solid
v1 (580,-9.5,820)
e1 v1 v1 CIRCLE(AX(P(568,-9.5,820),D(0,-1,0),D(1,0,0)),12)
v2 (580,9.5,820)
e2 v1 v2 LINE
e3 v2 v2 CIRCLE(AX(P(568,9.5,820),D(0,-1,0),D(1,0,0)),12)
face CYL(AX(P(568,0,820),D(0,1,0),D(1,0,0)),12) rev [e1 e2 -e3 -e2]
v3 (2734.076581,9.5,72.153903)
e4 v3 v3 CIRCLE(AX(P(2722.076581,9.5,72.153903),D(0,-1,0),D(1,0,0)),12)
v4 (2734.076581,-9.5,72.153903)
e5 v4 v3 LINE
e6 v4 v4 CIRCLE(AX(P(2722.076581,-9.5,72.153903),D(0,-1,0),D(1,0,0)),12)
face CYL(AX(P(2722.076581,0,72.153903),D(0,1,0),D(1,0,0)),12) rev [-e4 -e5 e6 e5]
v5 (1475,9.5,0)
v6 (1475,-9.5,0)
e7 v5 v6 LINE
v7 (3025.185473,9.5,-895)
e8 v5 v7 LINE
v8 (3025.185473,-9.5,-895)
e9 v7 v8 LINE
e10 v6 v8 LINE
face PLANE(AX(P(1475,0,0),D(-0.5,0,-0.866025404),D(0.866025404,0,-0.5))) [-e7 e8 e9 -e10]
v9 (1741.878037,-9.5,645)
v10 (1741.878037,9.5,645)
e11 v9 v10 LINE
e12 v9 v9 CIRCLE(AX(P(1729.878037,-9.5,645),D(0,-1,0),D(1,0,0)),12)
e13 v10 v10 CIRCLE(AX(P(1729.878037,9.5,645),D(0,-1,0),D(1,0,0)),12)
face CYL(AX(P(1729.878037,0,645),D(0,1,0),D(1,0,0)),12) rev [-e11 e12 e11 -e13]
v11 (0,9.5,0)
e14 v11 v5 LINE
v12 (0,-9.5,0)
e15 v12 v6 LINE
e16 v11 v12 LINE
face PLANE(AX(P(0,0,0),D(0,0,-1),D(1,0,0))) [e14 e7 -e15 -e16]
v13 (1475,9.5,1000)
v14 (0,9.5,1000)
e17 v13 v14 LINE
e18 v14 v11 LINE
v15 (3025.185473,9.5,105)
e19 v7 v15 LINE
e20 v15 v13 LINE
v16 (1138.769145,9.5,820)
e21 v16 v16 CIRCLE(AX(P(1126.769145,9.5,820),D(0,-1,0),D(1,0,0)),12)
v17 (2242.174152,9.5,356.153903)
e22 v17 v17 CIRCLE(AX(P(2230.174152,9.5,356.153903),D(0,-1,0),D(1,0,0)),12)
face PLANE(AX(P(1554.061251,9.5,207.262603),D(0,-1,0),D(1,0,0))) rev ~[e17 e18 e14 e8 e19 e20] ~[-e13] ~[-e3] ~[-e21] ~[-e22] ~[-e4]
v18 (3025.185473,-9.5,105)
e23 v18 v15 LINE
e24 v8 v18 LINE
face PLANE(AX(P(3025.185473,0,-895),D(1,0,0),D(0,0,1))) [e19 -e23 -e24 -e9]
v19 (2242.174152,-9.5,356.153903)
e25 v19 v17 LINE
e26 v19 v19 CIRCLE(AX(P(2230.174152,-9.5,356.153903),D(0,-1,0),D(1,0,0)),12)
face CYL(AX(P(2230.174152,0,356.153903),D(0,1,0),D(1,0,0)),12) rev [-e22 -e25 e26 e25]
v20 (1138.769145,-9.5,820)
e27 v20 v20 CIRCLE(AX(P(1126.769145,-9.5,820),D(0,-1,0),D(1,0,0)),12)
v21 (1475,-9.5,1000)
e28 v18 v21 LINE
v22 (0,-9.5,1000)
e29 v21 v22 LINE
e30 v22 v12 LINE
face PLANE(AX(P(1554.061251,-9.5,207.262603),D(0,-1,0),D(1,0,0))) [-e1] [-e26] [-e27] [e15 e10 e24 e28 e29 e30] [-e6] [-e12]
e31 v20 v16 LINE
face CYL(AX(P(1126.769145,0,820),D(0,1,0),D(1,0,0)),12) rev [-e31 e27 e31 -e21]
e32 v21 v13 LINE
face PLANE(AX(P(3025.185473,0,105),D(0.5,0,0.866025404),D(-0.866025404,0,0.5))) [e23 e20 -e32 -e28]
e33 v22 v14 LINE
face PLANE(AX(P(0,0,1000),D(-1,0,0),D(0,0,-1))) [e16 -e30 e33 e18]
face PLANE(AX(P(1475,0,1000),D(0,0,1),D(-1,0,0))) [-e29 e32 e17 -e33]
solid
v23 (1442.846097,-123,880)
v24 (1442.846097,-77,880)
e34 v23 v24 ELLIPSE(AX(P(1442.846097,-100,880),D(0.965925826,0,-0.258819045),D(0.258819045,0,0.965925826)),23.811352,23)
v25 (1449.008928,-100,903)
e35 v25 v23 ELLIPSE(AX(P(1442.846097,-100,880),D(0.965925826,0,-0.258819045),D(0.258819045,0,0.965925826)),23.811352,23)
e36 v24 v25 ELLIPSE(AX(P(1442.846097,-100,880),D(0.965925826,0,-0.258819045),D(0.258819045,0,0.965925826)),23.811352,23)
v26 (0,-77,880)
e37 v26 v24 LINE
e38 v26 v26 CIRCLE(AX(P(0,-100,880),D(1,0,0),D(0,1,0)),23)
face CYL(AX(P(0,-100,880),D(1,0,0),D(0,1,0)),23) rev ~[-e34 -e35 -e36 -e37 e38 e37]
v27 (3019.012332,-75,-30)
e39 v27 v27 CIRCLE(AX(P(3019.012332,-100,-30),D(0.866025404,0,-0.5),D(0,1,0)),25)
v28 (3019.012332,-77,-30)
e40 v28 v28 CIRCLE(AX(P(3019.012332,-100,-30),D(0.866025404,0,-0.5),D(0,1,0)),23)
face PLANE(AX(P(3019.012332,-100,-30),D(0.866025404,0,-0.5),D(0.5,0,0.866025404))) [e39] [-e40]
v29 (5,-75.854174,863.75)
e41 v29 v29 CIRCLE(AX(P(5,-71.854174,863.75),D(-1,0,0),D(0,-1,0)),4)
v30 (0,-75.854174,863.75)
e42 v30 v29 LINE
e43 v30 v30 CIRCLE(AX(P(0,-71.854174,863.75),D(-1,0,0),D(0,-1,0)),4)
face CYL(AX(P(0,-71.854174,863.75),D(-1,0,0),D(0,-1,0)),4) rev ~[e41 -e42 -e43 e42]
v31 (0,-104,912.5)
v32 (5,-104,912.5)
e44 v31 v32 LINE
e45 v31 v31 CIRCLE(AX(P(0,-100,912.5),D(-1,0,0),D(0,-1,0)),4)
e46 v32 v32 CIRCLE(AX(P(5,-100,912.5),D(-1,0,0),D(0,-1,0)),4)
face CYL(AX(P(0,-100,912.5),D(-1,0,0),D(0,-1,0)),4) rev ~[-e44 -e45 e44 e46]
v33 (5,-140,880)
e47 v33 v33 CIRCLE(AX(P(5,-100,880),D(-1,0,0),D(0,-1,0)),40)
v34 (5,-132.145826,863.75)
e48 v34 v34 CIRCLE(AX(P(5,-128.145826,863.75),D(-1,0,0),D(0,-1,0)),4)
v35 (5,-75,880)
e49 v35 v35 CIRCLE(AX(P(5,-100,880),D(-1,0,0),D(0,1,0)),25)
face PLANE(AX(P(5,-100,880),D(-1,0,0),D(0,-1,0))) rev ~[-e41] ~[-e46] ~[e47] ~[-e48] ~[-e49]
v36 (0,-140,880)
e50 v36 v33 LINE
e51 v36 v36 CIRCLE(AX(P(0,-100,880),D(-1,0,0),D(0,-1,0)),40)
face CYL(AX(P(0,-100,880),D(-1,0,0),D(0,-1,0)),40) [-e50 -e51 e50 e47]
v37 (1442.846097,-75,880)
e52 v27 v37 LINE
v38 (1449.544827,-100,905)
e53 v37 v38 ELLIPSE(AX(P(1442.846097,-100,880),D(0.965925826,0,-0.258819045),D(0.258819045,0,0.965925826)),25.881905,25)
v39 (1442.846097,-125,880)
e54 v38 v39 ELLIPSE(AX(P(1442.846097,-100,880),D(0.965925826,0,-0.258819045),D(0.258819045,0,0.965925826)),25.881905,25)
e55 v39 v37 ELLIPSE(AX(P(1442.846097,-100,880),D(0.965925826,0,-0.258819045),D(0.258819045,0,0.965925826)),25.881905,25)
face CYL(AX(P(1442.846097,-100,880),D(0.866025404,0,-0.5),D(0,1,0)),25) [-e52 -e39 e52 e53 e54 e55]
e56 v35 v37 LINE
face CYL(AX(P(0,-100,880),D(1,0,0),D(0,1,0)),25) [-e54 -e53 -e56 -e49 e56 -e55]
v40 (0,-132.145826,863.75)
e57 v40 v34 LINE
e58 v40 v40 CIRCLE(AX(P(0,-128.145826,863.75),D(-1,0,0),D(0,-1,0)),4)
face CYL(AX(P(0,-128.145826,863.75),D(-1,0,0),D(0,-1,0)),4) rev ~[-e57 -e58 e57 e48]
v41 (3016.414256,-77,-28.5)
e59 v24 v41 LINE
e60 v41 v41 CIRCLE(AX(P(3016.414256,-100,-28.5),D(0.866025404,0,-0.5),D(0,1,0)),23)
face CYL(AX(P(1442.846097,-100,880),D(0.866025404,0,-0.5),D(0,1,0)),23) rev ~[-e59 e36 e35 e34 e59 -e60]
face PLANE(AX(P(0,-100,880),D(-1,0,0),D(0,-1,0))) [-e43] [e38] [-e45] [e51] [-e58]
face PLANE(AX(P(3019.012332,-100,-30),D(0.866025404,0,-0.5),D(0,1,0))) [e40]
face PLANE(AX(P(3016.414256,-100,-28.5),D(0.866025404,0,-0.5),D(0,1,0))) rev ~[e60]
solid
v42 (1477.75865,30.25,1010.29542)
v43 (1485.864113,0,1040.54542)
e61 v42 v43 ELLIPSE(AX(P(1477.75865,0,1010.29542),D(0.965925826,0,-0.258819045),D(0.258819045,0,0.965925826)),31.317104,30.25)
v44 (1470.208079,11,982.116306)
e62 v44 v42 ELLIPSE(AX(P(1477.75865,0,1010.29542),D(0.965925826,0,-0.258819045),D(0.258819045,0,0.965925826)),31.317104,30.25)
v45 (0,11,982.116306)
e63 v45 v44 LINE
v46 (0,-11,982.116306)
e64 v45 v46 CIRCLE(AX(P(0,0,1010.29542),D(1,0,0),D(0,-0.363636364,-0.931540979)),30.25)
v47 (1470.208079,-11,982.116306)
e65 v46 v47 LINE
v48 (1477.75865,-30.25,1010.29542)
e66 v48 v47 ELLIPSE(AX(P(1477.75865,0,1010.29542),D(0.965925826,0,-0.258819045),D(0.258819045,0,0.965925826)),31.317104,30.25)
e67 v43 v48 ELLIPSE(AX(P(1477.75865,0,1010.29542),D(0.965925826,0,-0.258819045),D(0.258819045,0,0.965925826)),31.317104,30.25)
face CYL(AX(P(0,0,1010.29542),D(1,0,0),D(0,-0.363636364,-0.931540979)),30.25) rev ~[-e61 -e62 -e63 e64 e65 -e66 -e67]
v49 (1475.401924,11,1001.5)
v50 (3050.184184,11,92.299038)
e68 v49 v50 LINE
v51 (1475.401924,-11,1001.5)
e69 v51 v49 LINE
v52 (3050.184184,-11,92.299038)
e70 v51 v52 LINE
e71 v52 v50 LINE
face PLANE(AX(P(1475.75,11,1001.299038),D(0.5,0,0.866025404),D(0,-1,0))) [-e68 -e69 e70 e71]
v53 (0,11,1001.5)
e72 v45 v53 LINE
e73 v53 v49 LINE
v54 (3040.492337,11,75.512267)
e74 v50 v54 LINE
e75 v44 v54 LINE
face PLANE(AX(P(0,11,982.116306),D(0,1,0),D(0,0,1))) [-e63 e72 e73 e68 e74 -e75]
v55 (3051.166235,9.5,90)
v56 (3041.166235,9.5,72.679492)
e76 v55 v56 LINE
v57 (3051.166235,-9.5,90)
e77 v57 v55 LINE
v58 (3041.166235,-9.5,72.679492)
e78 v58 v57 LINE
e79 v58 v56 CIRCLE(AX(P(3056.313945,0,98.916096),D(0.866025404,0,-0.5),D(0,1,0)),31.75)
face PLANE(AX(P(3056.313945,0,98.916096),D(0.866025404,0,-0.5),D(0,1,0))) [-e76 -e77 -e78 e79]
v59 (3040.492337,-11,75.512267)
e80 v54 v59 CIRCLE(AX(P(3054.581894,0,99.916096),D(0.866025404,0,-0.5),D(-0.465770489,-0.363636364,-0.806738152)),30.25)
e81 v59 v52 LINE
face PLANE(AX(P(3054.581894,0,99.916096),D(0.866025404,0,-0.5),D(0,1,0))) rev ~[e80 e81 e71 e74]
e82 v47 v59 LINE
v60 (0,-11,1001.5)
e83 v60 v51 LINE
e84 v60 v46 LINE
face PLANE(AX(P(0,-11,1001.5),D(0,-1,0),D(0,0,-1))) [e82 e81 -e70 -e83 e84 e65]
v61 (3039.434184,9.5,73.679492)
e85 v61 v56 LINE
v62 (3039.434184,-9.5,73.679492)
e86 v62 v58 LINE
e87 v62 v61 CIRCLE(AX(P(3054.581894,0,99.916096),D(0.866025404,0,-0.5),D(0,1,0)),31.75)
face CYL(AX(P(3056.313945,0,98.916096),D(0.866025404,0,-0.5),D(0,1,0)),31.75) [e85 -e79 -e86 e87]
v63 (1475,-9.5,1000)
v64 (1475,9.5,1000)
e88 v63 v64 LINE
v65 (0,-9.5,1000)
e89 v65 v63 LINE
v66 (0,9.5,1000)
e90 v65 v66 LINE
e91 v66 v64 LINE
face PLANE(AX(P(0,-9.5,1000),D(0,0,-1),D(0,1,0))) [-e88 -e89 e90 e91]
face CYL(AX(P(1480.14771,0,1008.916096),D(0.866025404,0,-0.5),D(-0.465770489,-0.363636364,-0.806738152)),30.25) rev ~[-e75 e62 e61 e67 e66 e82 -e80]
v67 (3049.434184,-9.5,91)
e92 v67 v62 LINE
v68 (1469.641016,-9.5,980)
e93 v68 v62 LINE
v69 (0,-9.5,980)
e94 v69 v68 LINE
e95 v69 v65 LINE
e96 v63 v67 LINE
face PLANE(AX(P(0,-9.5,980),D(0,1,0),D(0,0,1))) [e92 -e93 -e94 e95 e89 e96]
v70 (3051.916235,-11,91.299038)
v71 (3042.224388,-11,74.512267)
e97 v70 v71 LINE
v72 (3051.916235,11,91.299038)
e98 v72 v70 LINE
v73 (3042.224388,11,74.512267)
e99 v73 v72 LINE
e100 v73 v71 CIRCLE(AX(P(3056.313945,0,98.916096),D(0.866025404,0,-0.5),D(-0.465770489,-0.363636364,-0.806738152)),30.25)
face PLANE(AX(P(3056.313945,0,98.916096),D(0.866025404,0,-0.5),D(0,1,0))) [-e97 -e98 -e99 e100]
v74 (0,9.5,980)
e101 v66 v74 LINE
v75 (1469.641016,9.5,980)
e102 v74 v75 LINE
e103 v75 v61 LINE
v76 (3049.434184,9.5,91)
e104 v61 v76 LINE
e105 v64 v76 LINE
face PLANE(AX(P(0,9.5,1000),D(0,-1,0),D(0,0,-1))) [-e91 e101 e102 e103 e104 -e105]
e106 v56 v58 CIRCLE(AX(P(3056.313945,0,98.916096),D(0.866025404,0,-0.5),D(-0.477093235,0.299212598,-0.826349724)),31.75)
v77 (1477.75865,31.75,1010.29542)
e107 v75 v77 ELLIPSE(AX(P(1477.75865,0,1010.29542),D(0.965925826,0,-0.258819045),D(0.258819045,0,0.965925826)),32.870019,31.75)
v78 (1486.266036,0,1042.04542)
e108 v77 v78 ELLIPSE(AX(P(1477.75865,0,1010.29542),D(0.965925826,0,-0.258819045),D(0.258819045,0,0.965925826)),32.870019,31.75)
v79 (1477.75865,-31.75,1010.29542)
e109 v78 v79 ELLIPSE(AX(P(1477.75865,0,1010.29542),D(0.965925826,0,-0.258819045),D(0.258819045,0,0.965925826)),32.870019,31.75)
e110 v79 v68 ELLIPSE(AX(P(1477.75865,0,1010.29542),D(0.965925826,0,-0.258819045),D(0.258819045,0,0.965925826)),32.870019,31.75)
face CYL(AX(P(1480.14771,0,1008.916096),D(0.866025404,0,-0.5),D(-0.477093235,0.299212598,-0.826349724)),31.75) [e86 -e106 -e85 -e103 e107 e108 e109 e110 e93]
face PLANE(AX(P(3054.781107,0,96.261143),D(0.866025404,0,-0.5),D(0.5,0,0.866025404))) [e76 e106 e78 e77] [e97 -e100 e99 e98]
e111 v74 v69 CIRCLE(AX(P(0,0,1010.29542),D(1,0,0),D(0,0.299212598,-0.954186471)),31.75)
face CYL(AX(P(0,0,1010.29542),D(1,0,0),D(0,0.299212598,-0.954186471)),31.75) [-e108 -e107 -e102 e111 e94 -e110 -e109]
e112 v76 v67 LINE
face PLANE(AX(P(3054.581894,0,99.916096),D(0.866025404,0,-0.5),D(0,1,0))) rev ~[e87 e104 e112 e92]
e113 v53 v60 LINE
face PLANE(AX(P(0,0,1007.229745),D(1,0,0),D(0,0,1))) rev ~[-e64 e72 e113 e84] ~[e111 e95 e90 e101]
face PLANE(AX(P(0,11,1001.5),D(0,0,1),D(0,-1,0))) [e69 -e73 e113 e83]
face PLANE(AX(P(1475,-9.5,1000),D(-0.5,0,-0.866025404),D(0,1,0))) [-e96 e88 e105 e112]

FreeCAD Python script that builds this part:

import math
import FreeCAD as App
import Part
import Sketcher

V = App.Vector
Q = App.Units.Quantity

doc = App.newDocument("Part")
body = doc.addObject("PartDesign::Body", "Body")

sketch1 = doc.addObject("Sketcher::SketchObject", "Sketch")
body.addObject(sketch1)
sketch1.AttachmentSupport = (doc.XZ_Plane, [""])
sketch1.MapMode = "FlatFace"
sketch1.addGeometry([
    Part.LineSegment(V(0, 1000, 0), V(0, 0, 0)),
    Part.LineSegment(V(0, 0, 0), V(1475, 0, 0)),
    Part.LineSegment(V(1475, 0, 0), V(3025, -895, 0)),
    Part.LineSegment(V(3025, -895, 0), V(3025, 105, 0)),
    Part.LineSegment(V(3025, 105, 0), V(1475, 1000, 0)),
    Part.LineSegment(V(1475, 1000, 0), V(0, 1000, 0)),
    Part.Circle(V(2722, 72, 0), V(0, 0, 1), 12),
    Part.Circle(V(2230, 356, 0), V(0, 0, 1), 12),
    Part.Circle(V(568, 820, 0), V(0, 0, 1), 12),
    Part.Circle(V(1127, 820, 0), V(0, 0, 1), 12),
    Part.Circle(V(1730, 645, 0), V(0, 0, 1), 12),
], False)
sketch1.addConstraint([
    Sketcher.Constraint("Coincident", 0, 2, 1, 1),
    Sketcher.Constraint("Coincident", 1, 2, 2, 1),
    Sketcher.Constraint("Coincident", 2, 2, 3, 1),
    Sketcher.Constraint("Coincident", 3, 2, 4, 1),
    Sketcher.Constraint("Coincident", 4, 2, 5, 1),
    Sketcher.Constraint("Coincident", 5, 2, 0, 1),
    Sketcher.Constraint("Vertical", 0),
    Sketcher.Constraint("Horizontal", 1),
    Sketcher.Constraint("Vertical", 3),
    Sketcher.Constraint("Horizontal", 5),
    Sketcher.Constraint("Coincident", 0, 2, -1, 1),
    Sketcher.Constraint("Equal", 6, 7),
    Sketcher.Constraint("Equal", 7, 8),
    Sketcher.Constraint("Equal", 8, 9),
    Sketcher.Constraint("Equal", 9, 10),
    Sketcher.Constraint("Parallel", 2, 4),
    Sketcher.Constraint("Horizontal", 8, 3, 9, 3),
    Sketcher.Constraint("Vertical", 1, 2, 4, 2),
    Sketcher.Constraint("Diameter", 6, Q("24 mm")),
    Sketcher.Constraint("DistanceX", 1, 1, 1, 2, Q("1475 mm")),
    Sketcher.Constraint("DistanceY", 0, 2, 0, 1, Q("1000 mm")),
    Sketcher.Constraint("Angle", 2, Q("-30 deg")),
    Sketcher.Constraint("Distance", 2, Q("1790 mm")),
    Sketcher.Constraint("DistanceX", -1, 1, 8, 3, Q("568 mm")),
    Sketcher.Constraint("DistanceY", -1, 1, 8, 3, Q("820 mm")),
    Sketcher.Constraint("DistanceY", -1, 1, 10, 3, Q("645 mm")),
    Sketcher.Constraint("DistanceY", 6, 3, 7, 3, Q("284 mm")),
    Sketcher.Constraint("DistanceX", -1, 1, 6, 3, Q("2722.076581 mm")),
    Sketcher.Constraint("DistanceX", 7, 3, 6, 3, Q("491.902429 mm")),
    Sketcher.Constraint("DistanceX", 9, 3, 10, 3, Q("603.108891 mm")),
    Sketcher.Constraint("DistanceY", -1, 1, 6, 3, Q("72.153903 mm")),
    Sketcher.Constraint("DistanceX", -1, 1, 9, 3, Q("1126.769145 mm")),
])
pad1 = doc.addObject("PartDesign::Pad", "Pad")
body.addObject(pad1)
pad1.Profile = sketch1
pad1.Length = 19
pad1.Midplane = True
body2 = doc.addObject("PartDesign::Body", "Body001")

sketch2 = doc.addObject("Sketcher::SketchObject", "Sketch001")
body2.addObject(sketch2)
sketch2.AttachmentSupport = (doc.getObject("YZ_Plane001"), [""])
sketch2.MapMode = "FlatFace"
sketch2.addGeometry([
    Part.LineSegment(V(10, 1000, 0), V(10, 980, 0)),
    Part.ArcOfCircle(Part.Circle(V(0, 1010, 0), V(0, 0, 1), 32), math.radians(-73), math.radians(253)),
    Part.LineSegment(V(-10, 980, 0), V(-10, 1000, 0)),
    Part.LineSegment(V(-10, 1000, 0), V(10, 1000, 0)),
    Part.LineSegment(V(-11, 1002, 0), V(-11, 982, 0)),
    Part.ArcOfCircle(Part.Circle(V(0, 1010, 0), V(0, 0, 1), 30), math.radians(-69), math.radians(249)),
    Part.LineSegment(V(11, 982, 0), V(11, 1002, 0)),
    Part.LineSegment(V(11, 1002, 0), V(-11, 1002, 0)),
], False)
sketch2.addConstraint([
    Sketcher.Constraint("Coincident", 0, 2, 1, 1),
    Sketcher.Constraint("Coincident", 1, 2, 2, 1),
    Sketcher.Constraint("Coincident", 2, 2, 3, 1),
    Sketcher.Constraint("Coincident", 3, 2, 0, 1),
    Sketcher.Constraint("Coincident", 4, 2, 5, 2),
    Sketcher.Constraint("Coincident", 5, 1, 6, 1),
    Sketcher.Constraint("Coincident", 6, 2, 7, 1),
    Sketcher.Constraint("Coincident", 7, 2, 4, 1),
    Sketcher.Constraint("Vertical", 0),
    Sketcher.Constraint("Vertical", 2),
    Sketcher.Constraint("Horizontal", 3),
    Sketcher.Constraint("Vertical", 4),
    Sketcher.Constraint("Vertical", 6),
    Sketcher.Constraint("Horizontal", 7),
    Sketcher.Constraint("Coincident", 5, 3, 1, 3),
    Sketcher.Constraint("Symmetric", 0, 2, 1, 2, -2),
    Sketcher.Constraint("Horizontal", 4, 2, 5, 1),
    Sketcher.Constraint("DistanceX", 3, 1, 3, 2, Q("19 mm")),
    Sketcher.Constraint("DistanceX", 7, 2, 7, 1, Q("22 mm")),
    Sketcher.Constraint("DistanceY", 0, 2, 0, 1, Q("20 mm")),
    Sketcher.Constraint("Radius", 1, Q("31.75 mm")),
    Sketcher.Constraint("Radius", 5, Q("30.25 mm")),
    Sketcher.Constraint("DistanceY", -1, 1, 0, 2, Q("980 mm")),
    Sketcher.Constraint("DistanceY", -1, 1, 6, 2, Q("1001.5 mm")),
])

sketch3 = doc.addObject("Sketcher::SketchObject", "Sketch002")
body2.addObject(sketch3)
sketch3.AttachmentSupport = (doc.getObject("XZ_Plane001"), [""])
sketch3.MapMode = "FlatFace"
sketch3.addGeometry([
    Part.LineSegment(V(0, 1000, 0), V(1475, 1000, 0)),
    Part.LineSegment(V(1475, 1000, 0), V(3051, 90, 0)),
], False)
sketch3.addConstraint([
    Sketcher.Constraint("Coincident", 0, 2, 1, 1),
    Sketcher.Constraint("Horizontal", 0),
    Sketcher.Constraint("PointOnObject", 0, 1, -2),
    Sketcher.Constraint("DistanceX", 0, 1, 0, 2, Q("1475 mm")),
    Sketcher.Constraint("Angle", 1, Q("-30 deg")),
    Sketcher.Constraint("Distance", 1, Q("1820 mm")),
    Sketcher.Constraint("DistanceY", -1, 1, 0, 1, Q("1000 mm")),
])
doc.recompute()

additivepipe = doc.addObject("PartDesign::AdditivePipe", "AdditivePipe")
body2.addObject(additivepipe)
additivepipe.Profile = sketch2
additivepipe.Spine = (sketch3, ["Edge1", "Edge2"])
additivepipe.Transition = "Right corner"

sketch4 = doc.addObject("Sketcher::SketchObject", "Sketch003")
body2.addObject(sketch4)
sketch4.Placement = App.Placement(V(2249.403533, 0, -1298.693735), App.Rotation(V(0, 1, 0), V(0.5, 0, 0.866025404), V(0.866025404, 0, -0.5), "ZXY"))
sketch4.addGeometry(Part.Circle(V(0, 1614, 0), V(0, 0, 1), 32), False)
sketch4.addConstraint([
    Sketcher.Constraint("PointOnObject", 0, 3, -2),
    Sketcher.Constraint("Diameter", 0, Q("63.5 mm")),
    Sketcher.Constraint("DistanceY", -1, 1, 0, 3, Q("1613.820825 mm")),
])
pad2 = doc.addObject("PartDesign::Pad", "Pad001")
body2.addObject(pad2)
pad2.Profile = sketch4
pad2.Length = 2
pad2.Reversed = True
body3 = doc.addObject("PartDesign::Body", "Body002")

sketch5 = doc.addObject("Sketcher::SketchObject", "Sketch004")
body3.addObject(sketch5)
sketch5.AttachmentSupport = (doc.getObject("YZ_Plane002"), [""])
sketch5.MapMode = "FlatFace"
sketch5.addGeometry([
    Part.Circle(V(-100, 880, 0), V(0, 0, 1), 25),
    Part.Circle(V(-100, 880, 0), V(0, 0, 1), 23),
], False)
sketch5.addConstraint([
    Sketcher.Constraint("Coincident", 1, 3, 0, 3),
    Sketcher.Constraint("Diameter", 0, Q("50 mm")),
    Sketcher.Constraint("Diameter", 1, Q("46 mm")),
    Sketcher.Constraint("DistanceX", 0, 3, -1, 1, Q("100 mm")),
    Sketcher.Constraint("DistanceY", -1, 1, 0, 3, Q("880 mm")),
])

sketch6 = doc.addObject("Sketcher::SketchObject", "Sketch005")
body3.addObject(sketch6)
sketch6.AttachmentSupport = (doc.getObject("XZ_Plane002"), [""])
sketch6.MapMode = "FlatFace"
sketch6.AttachmentOffset = App.Placement(V(0, 0, 100), App.Rotation())
sketch6.addGeometry([
    Part.LineSegment(V(0, 880, 0), V(1443, 880, 0)),
    Part.LineSegment(V(1443, 880, 0), V(3019, -30, 0)),
], False)
sketch6.addConstraint([
    Sketcher.Constraint("Coincident", 0, 2, 1, 1),
    Sketcher.Constraint("Horizontal", 0),
    Sketcher.Constraint("PointOnObject", 0, 1, -2),
    Sketcher.Constraint("Angle", 1, Q("-30 deg")),
    Sketcher.Constraint("Distance", 1, Q("1820 mm")),
    Sketcher.Constraint("DistanceY", -1, 1, 0, 1, Q("880 mm")),
    Sketcher.Constraint("DistanceX", 0, 1, 0, 2, Q("1442.846097 mm")),
])
doc.recompute()

additivepipe2 = doc.addObject("PartDesign::AdditivePipe", "AdditivePipe001")
body3.addObject(additivepipe2)
additivepipe2.Profile = sketch5
additivepipe2.Spine = (sketch6, ["Edge1", "Edge2"])
additivepipe2.Transition = "Right corner"

sketch7 = doc.addObject("Sketcher::SketchObject", "Sketch006")
body3.addObject(sketch7)
sketch7.Placement = App.Placement(V(2277.24963, 0, -1314.770687), App.Rotation(V(0, 1, 0), V(0.5, 0, 0.866025404), V(0.866025404, 0, -0.5), "ZXY"))
sketch7.addGeometry(Part.Circle(V(-100, 1484, 0), V(0, 0, 1), 25), False)
sketch7.addConstraint([
    Sketcher.Constraint("Diameter", 0, Q("50 mm")),
    Sketcher.Constraint("DistanceX", 0, 3, -1, 1, Q("100 mm")),
    Sketcher.Constraint("DistanceY", -1, 1, 0, 3, Q("1483.525404 mm")),
])
pad3 = doc.addObject("PartDesign::Pad", "Pad002")
body3.addObject(pad3)
pad3.Profile = sketch7
pad3.Length = 3
pad3.Reversed = True

sketch8 = doc.addObject("Sketcher::SketchObject", "Sketch007")
body3.addObject(sketch8)
sketch8.AttachmentSupport = (doc.getObject("YZ_Plane002"), [""])
sketch8.MapMode = "FlatFace"
sketch8.addGeometry([
    Part.Circle(V(-100, 880, 0), V(0, 0, 1), 40),
    Part.Circle(V(-71.9, 863.8, 0), V(0, 0, 1), 4),
    Part.Circle(V(-100, 880, 0), V(0, 0, 1), 25),
    Part.Circle(V(-128.1, 863.8, 0), V(0, 0, 1), 4),
    Part.Circle(V(-100, 912.5, 0), V(0, 0, 1), 4),
], False)
sketch8.addConstraint([
    Sketcher.Constraint("Coincident", 2, 3, 0, 3),
    Sketcher.Constraint("Equal", 1, 3),
    Sketcher.Constraint("Equal", 3, 4),
    Sketcher.Constraint("Horizontal", 1, 3, 3, 3),
    Sketcher.Constraint("Vertical", 2, 3, 4, 3),
    Sketcher.Constraint("Diameter", 0, Q("80 mm")),
    Sketcher.Constraint("Diameter", 1, Q("8 mm")),
    Sketcher.Constraint("Diameter", 2, Q("50 mm")),
    Sketcher.Constraint("DistanceX", 0, 3, -1, 1, Q("100 mm")),
    Sketcher.Constraint("DistanceY", -1, 1, 0, 3, Q("880 mm")),
    Sketcher.Constraint("DistanceY", -1, 1, 4, 3, Q("912.5 mm")),
    Sketcher.Constraint("DistanceY", -1, 1, 1, 3, Q("863.75 mm")),
    Sketcher.Constraint("DistanceX", 3, 3, 1, 3, Q("56.291651 mm")),
    Sketcher.Constraint("DistanceX", 1, 3, -1, 1, Q("71.854174 mm")),
])
pad4 = doc.addObject("PartDesign::Pad", "Pad003")
body3.addObject(pad4)
pad4.Profile = sketch8
pad4.Length = 5

doc.recompute()
